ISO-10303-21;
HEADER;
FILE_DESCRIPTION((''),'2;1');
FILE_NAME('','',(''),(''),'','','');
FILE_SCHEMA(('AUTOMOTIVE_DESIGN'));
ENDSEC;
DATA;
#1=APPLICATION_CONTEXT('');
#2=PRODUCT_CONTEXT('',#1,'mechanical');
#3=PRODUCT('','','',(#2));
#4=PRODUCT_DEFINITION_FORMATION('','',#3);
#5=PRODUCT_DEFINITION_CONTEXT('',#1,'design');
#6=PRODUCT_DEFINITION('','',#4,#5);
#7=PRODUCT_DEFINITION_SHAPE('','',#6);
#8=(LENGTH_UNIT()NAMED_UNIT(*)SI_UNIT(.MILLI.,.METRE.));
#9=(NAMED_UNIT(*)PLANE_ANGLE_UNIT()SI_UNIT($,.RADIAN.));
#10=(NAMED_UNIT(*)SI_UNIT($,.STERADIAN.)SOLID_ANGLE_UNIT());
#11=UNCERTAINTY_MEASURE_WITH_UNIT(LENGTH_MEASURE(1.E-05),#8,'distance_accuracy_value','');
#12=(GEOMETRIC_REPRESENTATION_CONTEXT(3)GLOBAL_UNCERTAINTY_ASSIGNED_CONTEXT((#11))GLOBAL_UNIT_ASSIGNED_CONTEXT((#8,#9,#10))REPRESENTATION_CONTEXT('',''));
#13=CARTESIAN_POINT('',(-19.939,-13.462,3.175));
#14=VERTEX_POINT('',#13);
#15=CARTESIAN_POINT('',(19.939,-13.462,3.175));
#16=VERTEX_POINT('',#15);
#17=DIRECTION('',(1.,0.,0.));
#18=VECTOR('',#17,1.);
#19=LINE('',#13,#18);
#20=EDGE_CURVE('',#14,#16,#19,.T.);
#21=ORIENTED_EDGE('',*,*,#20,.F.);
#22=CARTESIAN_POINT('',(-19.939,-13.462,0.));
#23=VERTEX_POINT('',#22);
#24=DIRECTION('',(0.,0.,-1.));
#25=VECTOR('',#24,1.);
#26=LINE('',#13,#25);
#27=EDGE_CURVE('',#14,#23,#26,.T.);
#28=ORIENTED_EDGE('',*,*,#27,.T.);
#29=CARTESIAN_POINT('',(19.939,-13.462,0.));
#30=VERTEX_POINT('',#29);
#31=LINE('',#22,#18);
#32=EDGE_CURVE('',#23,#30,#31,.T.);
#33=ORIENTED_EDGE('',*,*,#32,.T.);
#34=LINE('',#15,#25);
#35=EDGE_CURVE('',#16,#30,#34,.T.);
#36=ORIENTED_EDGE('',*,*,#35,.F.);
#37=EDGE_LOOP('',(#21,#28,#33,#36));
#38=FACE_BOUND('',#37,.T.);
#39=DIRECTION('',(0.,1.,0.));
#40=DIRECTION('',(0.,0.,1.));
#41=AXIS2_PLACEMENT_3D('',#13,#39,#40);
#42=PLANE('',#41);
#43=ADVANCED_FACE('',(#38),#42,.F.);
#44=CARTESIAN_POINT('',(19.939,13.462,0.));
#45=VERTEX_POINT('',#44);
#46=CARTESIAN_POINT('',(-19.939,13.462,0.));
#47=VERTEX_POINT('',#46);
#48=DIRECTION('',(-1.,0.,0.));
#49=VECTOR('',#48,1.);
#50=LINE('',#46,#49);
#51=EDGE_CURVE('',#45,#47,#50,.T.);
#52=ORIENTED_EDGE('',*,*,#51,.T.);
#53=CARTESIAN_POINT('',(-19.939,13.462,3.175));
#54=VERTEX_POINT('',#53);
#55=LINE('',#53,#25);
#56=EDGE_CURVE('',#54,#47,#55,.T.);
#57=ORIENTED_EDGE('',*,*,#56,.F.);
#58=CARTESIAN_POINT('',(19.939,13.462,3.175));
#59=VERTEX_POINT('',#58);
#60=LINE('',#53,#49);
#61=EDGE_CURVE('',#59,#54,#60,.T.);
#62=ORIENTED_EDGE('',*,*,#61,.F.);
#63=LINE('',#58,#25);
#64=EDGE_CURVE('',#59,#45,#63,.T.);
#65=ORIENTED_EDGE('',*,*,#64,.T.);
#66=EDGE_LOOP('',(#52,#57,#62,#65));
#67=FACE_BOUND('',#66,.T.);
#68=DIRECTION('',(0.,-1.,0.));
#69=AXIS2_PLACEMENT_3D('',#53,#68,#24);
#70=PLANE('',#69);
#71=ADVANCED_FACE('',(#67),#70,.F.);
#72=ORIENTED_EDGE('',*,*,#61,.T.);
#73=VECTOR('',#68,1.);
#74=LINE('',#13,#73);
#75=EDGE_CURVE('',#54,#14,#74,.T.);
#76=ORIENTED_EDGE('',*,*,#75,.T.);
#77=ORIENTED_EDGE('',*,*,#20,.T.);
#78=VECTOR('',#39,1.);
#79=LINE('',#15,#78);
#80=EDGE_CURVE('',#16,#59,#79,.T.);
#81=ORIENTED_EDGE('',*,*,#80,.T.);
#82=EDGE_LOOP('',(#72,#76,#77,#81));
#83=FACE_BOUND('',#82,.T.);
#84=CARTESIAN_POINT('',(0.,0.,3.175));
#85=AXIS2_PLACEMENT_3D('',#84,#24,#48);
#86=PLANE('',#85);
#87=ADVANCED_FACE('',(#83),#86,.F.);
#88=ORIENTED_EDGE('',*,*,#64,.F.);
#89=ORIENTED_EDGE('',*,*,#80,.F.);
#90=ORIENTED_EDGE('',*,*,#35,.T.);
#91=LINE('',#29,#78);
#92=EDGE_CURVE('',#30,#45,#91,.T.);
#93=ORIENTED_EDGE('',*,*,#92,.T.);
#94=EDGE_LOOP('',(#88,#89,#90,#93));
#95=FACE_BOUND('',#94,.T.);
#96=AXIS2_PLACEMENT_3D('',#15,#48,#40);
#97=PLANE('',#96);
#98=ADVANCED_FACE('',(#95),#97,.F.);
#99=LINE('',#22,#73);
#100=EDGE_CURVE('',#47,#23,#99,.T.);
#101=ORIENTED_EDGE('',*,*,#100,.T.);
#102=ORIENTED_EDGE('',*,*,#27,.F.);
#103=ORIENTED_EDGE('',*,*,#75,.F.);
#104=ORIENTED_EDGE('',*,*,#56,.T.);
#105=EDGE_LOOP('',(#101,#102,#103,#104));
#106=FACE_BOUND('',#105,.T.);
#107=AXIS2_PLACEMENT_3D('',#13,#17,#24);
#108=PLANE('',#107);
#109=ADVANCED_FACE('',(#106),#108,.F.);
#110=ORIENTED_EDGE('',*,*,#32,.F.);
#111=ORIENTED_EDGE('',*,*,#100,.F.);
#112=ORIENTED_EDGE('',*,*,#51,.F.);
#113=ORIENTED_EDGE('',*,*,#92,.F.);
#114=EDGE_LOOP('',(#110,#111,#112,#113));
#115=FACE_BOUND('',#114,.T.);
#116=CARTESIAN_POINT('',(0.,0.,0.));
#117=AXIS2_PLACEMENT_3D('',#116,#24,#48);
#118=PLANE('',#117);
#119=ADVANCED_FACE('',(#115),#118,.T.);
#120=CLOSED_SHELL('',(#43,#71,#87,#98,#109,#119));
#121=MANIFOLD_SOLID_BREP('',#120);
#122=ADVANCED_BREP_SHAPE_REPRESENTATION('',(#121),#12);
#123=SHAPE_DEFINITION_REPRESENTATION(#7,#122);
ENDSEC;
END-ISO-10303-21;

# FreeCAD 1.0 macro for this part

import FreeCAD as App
import Part
import Sketcher
from FreeCAD import Vector
Q = App.Units.Quantity

doc = App.newDocument("Part")
body = doc.addObject("PartDesign::Body", "Body")

sketch1 = doc.addObject("Sketcher::SketchObject", "Sketch")
body.addObject(sketch1)
sketch1.AttachmentSupport = (doc.XY_Plane, [""])
sketch1.MapMode = "FlatFace"
sketch1.addGeometry([
    Part.LineSegment(Vector(-20, 13, 0), Vector(-20, -13, 0)),
    Part.LineSegment(Vector(-20, -13, 0), Vector(20, -13, 0)),
    Part.LineSegment(Vector(20, -13, 0), Vector(20, 13, 0)),
    Part.LineSegment(Vector(20, 13, 0), Vector(-20, 13, 0)),
], False)
sketch1.addConstraint([
    Sketcher.Constraint("Coincident", 0, 2, 1, 1),
    Sketcher.Constraint("Coincident", 1, 2, 2, 1),
    Sketcher.Constraint("Coincident", 2, 2, 3, 1),
    Sketcher.Constraint("Coincident", 3, 2, 0, 1),
    Sketcher.Constraint("Vertical", 0),
    Sketcher.Constraint("Horizontal", 1),
    Sketcher.Constraint("Vertical", 2),
    Sketcher.Constraint("Horizontal", 3),
    Sketcher.Constraint("Symmetric", 0, 2, 2, 2, -1, 1),
    Sketcher.Constraint("DistanceX", 1, 1, 1, 2, Q("1.57 in")),
    Sketcher.Constraint("DistanceY", 0, 2, 0, 1, Q("1.06 in")),
])
pad1 = doc.addObject("PartDesign::Pad", "Pad")
body.addObject(pad1)
pad1.Profile = sketch1
pad1.Length = Q("0.125 in")

doc.recompute()
